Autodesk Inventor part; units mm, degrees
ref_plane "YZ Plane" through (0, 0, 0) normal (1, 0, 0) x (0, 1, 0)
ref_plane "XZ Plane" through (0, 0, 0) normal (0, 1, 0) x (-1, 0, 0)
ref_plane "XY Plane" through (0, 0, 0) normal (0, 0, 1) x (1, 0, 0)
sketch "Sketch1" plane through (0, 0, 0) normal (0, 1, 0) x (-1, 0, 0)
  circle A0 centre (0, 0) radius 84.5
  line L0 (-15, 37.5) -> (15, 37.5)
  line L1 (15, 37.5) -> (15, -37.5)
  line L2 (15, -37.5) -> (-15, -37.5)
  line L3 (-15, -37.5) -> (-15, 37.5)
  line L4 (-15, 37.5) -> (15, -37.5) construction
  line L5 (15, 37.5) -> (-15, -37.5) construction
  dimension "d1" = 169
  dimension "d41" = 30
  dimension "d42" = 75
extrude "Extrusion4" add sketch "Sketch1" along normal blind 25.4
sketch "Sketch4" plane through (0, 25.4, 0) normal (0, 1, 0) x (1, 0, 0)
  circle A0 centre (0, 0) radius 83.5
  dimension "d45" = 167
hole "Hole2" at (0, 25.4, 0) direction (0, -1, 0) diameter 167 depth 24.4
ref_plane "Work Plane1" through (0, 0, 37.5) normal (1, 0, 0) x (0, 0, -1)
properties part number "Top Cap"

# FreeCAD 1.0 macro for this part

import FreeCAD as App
import Part
import Sketcher

V = App.Vector
Q = App.Units.Quantity


def add_polygon(sketch, points):
    """Adds a closed chain of lines whose ends are joined by coincident constraints."""
    first, n = sketch.GeometryCount, len(points)
    for a, b in zip(points, points[1:] + points[:1]):
        sketch.addGeometry(Part.LineSegment(App.Vector(*a, 0), App.Vector(*b, 0)), False)
    for i in range(n):
        sketch.addConstraint(Sketcher.Constraint("Coincident", first + i, 2, first + (i + 1) % n, 1))

doc = App.newDocument("Part")
params = doc.addObject("Spreadsheet::Sheet", "Params")
for row, (alias, value) in enumerate([
    ("sketch1_diameter", "169 mm"),
    ("sketch1_width", "30 mm"),
    ("sketch1_height", "75 mm"),
    ("pad1_length", "25.4 mm"),
    ("sketch2_diameter", "167 mm"),
    ("hole_diameter", "167 mm"),
    ("hole_depth", "24.4 mm"),
], start=1):
    params.set(f"A{row}", alias)
    params.set(f"B{row}", "=" + value)
    params.setAlias(f"B{row}", alias)

body = doc.addObject("PartDesign::Body", "Body")

# Sketch on XZ plane
sketch1 = body.newObject("Sketcher::SketchObject", "Sketch")
sketch1.AttachmentSupport = (doc.getObject("XZ_Plane"), [""])
sketch1.MapMode = "FlatFace"
sketch1.addGeometry(Part.Circle(V(0, 0, 0), V(0, 0, 1), 84.5), False)  # 0
add_polygon(sketch1, [(15, -37.5), (15, 37.5), (-15, 37.5), (-15, -37.5)])  # lines 1-4
sketch1.addConstraint(Sketcher.Constraint("Vertical", 1))
sketch1.addConstraint(Sketcher.Constraint("Horizontal", 2))
sketch1.addConstraint(Sketcher.Constraint("Vertical", 3))
sketch1.addConstraint(Sketcher.Constraint("Horizontal", 4))
sketch1.addConstraint(Sketcher.Constraint("Coincident", 0, 3, -1, 1))
sketch1.addConstraint(Sketcher.Constraint("Symmetric", 1, 2, 3, 2, -1, 1))
sketch1.addConstraint(Sketcher.Constraint("Diameter", 0, Q("169 mm")))
sketch1.addConstraint(Sketcher.Constraint("DistanceX", 2, 2, 2, 1, Q("30 mm")))
sketch1.addConstraint(Sketcher.Constraint("DistanceY", 1, 1, 1, 2, Q("75 mm")))
sketch1.setExpression("Constraints[10]", "Params.sketch1_diameter")
sketch1.setExpression("Constraints[11]", "Params.sketch1_width")
sketch1.setExpression("Constraints[12]", "Params.sketch1_height")
pad1 = body.newObject("PartDesign::Pad", "Pad")
pad1.Profile = sketch1
pad1.setExpression("Length", "Params.pad1_length")
pad1.Reversed = True

# Sketch on XZ plane
sketch2 = body.newObject("Sketcher::SketchObject", "Sketch001")
sketch2.AttachmentSupport = (doc.getObject("XZ_Plane"), [""])
sketch2.MapMode = "FlatFace"
sketch2.AttachmentOffset = App.Placement(V(0, 0, -25.4), App.Rotation())
sketch2.addGeometry(Part.Circle(V(0, 0, 0), V(0, 0, 1), 83.5), False)
sketch2.addConstraint(Sketcher.Constraint("Coincident", 0, 3, -1, 1))
sketch2.addConstraint(Sketcher.Constraint("Diameter", 0, Q("167 mm")))
sketch2.setExpression("Constraints[1]", "Params.sketch2_diameter")
doc.recompute()
hole = body.newObject("PartDesign::Hole", "Hole")
hole.Profile = sketch2
hole.ThreadType = "None"
hole.setExpression("Diameter", "Params.hole_diameter")
hole.DepthType = "Dimension"
hole.setExpression("Depth", "Params.hole_depth")
hole.DrillPoint = "Flat"
hole.Reversed = True

doc.recompute()
